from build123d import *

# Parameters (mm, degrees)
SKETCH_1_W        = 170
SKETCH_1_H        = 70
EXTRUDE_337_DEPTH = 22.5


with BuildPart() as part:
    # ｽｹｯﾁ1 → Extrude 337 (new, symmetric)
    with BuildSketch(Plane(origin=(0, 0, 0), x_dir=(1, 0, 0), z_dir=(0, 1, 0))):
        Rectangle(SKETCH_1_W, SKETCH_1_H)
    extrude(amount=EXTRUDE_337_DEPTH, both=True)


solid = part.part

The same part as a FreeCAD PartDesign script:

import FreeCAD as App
import Part
import Sketcher


def add_polygon(sketch, points):
    """Adds a closed chain of lines whose ends are joined by coincident constraints."""
    first, n = sketch.GeometryCount, len(points)
    for a, b in zip(points, points[1:] + points[:1]):
        sketch.addGeometry(Part.LineSegment(App.Vector(*a, 0), App.Vector(*b, 0)), False)
    for i in range(n):
        sketch.addConstraint(Sketcher.Constraint("Coincident", first + i, 2, first + (i + 1) % n, 1))

doc = App.newDocument("Part")
body = doc.addObject("PartDesign::Body", "Body")

# Sketch on XZ plane
sketch1 = doc.addObject("Sketcher::SketchObject", "Sketch")
body.addObject(sketch1)
sketch1.AttachmentSupport = (doc.XZ_Plane, [""])
sketch1.MapMode = "FlatFace"
add_polygon(sketch1, [(-85, -35), (-85, 35), (85, 35), (85, -35)])  # lines 0-3
sketch1.addConstraint([
    Sketcher.Constraint("Vertical", 0),
    Sketcher.Constraint("Horizontal", 1),
    Sketcher.Constraint("Vertical", 2),
    Sketcher.Constraint("Horizontal", 3),
    Sketcher.Constraint("Symmetric", 0, 2, 2, 2, -1, 1),
    Sketcher.Constraint("DistanceX", 1, 1, 1, 2, 170.0),
    Sketcher.Constraint("DistanceY", 0, 1, 0, 2, 70.0),
])
pad1 = doc.addObject("PartDesign::Pad", "Pad")
body.addObject(pad1)
pad1.Profile = sketch1
pad1.Length = 45
pad1.Midplane = True

doc.recompute()
